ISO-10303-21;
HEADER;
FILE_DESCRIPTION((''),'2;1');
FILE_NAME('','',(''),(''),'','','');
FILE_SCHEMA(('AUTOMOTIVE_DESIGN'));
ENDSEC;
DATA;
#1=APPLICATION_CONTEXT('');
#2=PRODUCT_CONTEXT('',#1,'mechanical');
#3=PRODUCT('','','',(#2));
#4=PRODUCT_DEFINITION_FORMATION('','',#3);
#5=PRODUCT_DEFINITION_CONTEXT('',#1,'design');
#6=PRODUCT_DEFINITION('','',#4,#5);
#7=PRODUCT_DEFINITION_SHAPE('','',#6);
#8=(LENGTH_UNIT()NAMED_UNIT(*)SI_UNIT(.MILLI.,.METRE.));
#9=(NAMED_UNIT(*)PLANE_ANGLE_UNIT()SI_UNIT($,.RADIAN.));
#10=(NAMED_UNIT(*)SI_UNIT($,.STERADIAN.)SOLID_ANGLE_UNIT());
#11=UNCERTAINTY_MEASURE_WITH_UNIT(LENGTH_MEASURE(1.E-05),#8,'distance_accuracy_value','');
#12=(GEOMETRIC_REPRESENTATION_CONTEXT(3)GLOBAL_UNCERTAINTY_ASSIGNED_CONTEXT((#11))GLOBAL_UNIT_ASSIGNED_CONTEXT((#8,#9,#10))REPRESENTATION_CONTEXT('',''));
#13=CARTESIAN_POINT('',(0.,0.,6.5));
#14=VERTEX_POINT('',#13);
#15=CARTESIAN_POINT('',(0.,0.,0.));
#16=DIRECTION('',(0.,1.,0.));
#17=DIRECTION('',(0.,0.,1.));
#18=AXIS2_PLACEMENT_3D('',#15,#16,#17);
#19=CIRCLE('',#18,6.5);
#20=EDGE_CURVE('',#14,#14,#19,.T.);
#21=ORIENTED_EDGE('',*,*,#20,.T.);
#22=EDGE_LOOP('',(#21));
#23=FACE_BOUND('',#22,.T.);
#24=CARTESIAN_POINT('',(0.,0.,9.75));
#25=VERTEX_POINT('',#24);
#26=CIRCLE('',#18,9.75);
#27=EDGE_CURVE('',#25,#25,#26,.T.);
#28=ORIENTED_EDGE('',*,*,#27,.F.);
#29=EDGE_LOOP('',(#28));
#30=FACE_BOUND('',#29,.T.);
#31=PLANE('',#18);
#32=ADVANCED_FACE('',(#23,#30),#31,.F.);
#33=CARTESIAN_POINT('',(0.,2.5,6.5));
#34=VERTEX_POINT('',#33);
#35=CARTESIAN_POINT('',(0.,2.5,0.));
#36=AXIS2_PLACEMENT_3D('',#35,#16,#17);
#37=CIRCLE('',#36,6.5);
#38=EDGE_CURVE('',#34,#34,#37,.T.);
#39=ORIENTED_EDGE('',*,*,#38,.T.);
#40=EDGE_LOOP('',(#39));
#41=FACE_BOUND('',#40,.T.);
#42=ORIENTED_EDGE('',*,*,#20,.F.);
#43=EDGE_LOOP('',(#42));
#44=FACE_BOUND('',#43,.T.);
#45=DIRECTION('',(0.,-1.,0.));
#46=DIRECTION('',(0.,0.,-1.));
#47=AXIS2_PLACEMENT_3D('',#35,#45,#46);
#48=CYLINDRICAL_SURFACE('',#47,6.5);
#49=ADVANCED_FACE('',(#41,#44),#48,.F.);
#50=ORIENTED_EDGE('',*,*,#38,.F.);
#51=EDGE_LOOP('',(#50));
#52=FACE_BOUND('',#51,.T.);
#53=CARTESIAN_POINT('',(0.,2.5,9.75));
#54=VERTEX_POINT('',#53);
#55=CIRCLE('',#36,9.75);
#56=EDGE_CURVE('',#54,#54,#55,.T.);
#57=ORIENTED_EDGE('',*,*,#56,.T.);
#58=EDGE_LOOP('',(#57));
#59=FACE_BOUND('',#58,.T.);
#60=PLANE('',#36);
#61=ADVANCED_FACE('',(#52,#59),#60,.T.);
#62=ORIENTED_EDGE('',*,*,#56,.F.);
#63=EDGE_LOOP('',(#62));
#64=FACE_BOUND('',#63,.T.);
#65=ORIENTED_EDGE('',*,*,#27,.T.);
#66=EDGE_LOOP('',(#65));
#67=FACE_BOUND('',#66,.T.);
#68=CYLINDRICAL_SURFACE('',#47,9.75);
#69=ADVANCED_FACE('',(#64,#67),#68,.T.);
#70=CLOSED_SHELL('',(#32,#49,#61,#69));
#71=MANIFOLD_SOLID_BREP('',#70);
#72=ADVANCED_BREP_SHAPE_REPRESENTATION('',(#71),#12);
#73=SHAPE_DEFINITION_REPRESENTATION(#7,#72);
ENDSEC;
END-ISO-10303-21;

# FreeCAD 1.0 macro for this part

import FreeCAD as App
import Part
import Sketcher

V = App.Vector

doc = App.newDocument("Part")
body = doc.addObject("PartDesign::Body", "Body")

sketch1 = body.newObject("Sketcher::SketchObject", "Sketch")
sketch1.AttachmentSupport = (doc.getObject("XZ_Plane"), [""])
sketch1.MapMode = "FlatFace"
sketch1.addGeometry([
    Part.Circle(V(0, 0, 0), V(0, 0, 1), 10),
    Part.Circle(V(0, 0, 0), V(0, 0, 1), 6),
], False)
sketch1.addConstraint([
    Sketcher.Constraint("Coincident", 0, 3, -1, 1),
    Sketcher.Constraint("Coincident", 1, 3, -1, 1),
    Sketcher.Constraint("Diameter", 1, 13.0),
    Sketcher.Constraint("Diameter", 0, 19.5),
])
pad1 = body.newObject("PartDesign::Pad", "Pad")
pad1.Profile = sketch1
pad1.Length = 2.5
pad1.Reversed = True

doc.recompute()
